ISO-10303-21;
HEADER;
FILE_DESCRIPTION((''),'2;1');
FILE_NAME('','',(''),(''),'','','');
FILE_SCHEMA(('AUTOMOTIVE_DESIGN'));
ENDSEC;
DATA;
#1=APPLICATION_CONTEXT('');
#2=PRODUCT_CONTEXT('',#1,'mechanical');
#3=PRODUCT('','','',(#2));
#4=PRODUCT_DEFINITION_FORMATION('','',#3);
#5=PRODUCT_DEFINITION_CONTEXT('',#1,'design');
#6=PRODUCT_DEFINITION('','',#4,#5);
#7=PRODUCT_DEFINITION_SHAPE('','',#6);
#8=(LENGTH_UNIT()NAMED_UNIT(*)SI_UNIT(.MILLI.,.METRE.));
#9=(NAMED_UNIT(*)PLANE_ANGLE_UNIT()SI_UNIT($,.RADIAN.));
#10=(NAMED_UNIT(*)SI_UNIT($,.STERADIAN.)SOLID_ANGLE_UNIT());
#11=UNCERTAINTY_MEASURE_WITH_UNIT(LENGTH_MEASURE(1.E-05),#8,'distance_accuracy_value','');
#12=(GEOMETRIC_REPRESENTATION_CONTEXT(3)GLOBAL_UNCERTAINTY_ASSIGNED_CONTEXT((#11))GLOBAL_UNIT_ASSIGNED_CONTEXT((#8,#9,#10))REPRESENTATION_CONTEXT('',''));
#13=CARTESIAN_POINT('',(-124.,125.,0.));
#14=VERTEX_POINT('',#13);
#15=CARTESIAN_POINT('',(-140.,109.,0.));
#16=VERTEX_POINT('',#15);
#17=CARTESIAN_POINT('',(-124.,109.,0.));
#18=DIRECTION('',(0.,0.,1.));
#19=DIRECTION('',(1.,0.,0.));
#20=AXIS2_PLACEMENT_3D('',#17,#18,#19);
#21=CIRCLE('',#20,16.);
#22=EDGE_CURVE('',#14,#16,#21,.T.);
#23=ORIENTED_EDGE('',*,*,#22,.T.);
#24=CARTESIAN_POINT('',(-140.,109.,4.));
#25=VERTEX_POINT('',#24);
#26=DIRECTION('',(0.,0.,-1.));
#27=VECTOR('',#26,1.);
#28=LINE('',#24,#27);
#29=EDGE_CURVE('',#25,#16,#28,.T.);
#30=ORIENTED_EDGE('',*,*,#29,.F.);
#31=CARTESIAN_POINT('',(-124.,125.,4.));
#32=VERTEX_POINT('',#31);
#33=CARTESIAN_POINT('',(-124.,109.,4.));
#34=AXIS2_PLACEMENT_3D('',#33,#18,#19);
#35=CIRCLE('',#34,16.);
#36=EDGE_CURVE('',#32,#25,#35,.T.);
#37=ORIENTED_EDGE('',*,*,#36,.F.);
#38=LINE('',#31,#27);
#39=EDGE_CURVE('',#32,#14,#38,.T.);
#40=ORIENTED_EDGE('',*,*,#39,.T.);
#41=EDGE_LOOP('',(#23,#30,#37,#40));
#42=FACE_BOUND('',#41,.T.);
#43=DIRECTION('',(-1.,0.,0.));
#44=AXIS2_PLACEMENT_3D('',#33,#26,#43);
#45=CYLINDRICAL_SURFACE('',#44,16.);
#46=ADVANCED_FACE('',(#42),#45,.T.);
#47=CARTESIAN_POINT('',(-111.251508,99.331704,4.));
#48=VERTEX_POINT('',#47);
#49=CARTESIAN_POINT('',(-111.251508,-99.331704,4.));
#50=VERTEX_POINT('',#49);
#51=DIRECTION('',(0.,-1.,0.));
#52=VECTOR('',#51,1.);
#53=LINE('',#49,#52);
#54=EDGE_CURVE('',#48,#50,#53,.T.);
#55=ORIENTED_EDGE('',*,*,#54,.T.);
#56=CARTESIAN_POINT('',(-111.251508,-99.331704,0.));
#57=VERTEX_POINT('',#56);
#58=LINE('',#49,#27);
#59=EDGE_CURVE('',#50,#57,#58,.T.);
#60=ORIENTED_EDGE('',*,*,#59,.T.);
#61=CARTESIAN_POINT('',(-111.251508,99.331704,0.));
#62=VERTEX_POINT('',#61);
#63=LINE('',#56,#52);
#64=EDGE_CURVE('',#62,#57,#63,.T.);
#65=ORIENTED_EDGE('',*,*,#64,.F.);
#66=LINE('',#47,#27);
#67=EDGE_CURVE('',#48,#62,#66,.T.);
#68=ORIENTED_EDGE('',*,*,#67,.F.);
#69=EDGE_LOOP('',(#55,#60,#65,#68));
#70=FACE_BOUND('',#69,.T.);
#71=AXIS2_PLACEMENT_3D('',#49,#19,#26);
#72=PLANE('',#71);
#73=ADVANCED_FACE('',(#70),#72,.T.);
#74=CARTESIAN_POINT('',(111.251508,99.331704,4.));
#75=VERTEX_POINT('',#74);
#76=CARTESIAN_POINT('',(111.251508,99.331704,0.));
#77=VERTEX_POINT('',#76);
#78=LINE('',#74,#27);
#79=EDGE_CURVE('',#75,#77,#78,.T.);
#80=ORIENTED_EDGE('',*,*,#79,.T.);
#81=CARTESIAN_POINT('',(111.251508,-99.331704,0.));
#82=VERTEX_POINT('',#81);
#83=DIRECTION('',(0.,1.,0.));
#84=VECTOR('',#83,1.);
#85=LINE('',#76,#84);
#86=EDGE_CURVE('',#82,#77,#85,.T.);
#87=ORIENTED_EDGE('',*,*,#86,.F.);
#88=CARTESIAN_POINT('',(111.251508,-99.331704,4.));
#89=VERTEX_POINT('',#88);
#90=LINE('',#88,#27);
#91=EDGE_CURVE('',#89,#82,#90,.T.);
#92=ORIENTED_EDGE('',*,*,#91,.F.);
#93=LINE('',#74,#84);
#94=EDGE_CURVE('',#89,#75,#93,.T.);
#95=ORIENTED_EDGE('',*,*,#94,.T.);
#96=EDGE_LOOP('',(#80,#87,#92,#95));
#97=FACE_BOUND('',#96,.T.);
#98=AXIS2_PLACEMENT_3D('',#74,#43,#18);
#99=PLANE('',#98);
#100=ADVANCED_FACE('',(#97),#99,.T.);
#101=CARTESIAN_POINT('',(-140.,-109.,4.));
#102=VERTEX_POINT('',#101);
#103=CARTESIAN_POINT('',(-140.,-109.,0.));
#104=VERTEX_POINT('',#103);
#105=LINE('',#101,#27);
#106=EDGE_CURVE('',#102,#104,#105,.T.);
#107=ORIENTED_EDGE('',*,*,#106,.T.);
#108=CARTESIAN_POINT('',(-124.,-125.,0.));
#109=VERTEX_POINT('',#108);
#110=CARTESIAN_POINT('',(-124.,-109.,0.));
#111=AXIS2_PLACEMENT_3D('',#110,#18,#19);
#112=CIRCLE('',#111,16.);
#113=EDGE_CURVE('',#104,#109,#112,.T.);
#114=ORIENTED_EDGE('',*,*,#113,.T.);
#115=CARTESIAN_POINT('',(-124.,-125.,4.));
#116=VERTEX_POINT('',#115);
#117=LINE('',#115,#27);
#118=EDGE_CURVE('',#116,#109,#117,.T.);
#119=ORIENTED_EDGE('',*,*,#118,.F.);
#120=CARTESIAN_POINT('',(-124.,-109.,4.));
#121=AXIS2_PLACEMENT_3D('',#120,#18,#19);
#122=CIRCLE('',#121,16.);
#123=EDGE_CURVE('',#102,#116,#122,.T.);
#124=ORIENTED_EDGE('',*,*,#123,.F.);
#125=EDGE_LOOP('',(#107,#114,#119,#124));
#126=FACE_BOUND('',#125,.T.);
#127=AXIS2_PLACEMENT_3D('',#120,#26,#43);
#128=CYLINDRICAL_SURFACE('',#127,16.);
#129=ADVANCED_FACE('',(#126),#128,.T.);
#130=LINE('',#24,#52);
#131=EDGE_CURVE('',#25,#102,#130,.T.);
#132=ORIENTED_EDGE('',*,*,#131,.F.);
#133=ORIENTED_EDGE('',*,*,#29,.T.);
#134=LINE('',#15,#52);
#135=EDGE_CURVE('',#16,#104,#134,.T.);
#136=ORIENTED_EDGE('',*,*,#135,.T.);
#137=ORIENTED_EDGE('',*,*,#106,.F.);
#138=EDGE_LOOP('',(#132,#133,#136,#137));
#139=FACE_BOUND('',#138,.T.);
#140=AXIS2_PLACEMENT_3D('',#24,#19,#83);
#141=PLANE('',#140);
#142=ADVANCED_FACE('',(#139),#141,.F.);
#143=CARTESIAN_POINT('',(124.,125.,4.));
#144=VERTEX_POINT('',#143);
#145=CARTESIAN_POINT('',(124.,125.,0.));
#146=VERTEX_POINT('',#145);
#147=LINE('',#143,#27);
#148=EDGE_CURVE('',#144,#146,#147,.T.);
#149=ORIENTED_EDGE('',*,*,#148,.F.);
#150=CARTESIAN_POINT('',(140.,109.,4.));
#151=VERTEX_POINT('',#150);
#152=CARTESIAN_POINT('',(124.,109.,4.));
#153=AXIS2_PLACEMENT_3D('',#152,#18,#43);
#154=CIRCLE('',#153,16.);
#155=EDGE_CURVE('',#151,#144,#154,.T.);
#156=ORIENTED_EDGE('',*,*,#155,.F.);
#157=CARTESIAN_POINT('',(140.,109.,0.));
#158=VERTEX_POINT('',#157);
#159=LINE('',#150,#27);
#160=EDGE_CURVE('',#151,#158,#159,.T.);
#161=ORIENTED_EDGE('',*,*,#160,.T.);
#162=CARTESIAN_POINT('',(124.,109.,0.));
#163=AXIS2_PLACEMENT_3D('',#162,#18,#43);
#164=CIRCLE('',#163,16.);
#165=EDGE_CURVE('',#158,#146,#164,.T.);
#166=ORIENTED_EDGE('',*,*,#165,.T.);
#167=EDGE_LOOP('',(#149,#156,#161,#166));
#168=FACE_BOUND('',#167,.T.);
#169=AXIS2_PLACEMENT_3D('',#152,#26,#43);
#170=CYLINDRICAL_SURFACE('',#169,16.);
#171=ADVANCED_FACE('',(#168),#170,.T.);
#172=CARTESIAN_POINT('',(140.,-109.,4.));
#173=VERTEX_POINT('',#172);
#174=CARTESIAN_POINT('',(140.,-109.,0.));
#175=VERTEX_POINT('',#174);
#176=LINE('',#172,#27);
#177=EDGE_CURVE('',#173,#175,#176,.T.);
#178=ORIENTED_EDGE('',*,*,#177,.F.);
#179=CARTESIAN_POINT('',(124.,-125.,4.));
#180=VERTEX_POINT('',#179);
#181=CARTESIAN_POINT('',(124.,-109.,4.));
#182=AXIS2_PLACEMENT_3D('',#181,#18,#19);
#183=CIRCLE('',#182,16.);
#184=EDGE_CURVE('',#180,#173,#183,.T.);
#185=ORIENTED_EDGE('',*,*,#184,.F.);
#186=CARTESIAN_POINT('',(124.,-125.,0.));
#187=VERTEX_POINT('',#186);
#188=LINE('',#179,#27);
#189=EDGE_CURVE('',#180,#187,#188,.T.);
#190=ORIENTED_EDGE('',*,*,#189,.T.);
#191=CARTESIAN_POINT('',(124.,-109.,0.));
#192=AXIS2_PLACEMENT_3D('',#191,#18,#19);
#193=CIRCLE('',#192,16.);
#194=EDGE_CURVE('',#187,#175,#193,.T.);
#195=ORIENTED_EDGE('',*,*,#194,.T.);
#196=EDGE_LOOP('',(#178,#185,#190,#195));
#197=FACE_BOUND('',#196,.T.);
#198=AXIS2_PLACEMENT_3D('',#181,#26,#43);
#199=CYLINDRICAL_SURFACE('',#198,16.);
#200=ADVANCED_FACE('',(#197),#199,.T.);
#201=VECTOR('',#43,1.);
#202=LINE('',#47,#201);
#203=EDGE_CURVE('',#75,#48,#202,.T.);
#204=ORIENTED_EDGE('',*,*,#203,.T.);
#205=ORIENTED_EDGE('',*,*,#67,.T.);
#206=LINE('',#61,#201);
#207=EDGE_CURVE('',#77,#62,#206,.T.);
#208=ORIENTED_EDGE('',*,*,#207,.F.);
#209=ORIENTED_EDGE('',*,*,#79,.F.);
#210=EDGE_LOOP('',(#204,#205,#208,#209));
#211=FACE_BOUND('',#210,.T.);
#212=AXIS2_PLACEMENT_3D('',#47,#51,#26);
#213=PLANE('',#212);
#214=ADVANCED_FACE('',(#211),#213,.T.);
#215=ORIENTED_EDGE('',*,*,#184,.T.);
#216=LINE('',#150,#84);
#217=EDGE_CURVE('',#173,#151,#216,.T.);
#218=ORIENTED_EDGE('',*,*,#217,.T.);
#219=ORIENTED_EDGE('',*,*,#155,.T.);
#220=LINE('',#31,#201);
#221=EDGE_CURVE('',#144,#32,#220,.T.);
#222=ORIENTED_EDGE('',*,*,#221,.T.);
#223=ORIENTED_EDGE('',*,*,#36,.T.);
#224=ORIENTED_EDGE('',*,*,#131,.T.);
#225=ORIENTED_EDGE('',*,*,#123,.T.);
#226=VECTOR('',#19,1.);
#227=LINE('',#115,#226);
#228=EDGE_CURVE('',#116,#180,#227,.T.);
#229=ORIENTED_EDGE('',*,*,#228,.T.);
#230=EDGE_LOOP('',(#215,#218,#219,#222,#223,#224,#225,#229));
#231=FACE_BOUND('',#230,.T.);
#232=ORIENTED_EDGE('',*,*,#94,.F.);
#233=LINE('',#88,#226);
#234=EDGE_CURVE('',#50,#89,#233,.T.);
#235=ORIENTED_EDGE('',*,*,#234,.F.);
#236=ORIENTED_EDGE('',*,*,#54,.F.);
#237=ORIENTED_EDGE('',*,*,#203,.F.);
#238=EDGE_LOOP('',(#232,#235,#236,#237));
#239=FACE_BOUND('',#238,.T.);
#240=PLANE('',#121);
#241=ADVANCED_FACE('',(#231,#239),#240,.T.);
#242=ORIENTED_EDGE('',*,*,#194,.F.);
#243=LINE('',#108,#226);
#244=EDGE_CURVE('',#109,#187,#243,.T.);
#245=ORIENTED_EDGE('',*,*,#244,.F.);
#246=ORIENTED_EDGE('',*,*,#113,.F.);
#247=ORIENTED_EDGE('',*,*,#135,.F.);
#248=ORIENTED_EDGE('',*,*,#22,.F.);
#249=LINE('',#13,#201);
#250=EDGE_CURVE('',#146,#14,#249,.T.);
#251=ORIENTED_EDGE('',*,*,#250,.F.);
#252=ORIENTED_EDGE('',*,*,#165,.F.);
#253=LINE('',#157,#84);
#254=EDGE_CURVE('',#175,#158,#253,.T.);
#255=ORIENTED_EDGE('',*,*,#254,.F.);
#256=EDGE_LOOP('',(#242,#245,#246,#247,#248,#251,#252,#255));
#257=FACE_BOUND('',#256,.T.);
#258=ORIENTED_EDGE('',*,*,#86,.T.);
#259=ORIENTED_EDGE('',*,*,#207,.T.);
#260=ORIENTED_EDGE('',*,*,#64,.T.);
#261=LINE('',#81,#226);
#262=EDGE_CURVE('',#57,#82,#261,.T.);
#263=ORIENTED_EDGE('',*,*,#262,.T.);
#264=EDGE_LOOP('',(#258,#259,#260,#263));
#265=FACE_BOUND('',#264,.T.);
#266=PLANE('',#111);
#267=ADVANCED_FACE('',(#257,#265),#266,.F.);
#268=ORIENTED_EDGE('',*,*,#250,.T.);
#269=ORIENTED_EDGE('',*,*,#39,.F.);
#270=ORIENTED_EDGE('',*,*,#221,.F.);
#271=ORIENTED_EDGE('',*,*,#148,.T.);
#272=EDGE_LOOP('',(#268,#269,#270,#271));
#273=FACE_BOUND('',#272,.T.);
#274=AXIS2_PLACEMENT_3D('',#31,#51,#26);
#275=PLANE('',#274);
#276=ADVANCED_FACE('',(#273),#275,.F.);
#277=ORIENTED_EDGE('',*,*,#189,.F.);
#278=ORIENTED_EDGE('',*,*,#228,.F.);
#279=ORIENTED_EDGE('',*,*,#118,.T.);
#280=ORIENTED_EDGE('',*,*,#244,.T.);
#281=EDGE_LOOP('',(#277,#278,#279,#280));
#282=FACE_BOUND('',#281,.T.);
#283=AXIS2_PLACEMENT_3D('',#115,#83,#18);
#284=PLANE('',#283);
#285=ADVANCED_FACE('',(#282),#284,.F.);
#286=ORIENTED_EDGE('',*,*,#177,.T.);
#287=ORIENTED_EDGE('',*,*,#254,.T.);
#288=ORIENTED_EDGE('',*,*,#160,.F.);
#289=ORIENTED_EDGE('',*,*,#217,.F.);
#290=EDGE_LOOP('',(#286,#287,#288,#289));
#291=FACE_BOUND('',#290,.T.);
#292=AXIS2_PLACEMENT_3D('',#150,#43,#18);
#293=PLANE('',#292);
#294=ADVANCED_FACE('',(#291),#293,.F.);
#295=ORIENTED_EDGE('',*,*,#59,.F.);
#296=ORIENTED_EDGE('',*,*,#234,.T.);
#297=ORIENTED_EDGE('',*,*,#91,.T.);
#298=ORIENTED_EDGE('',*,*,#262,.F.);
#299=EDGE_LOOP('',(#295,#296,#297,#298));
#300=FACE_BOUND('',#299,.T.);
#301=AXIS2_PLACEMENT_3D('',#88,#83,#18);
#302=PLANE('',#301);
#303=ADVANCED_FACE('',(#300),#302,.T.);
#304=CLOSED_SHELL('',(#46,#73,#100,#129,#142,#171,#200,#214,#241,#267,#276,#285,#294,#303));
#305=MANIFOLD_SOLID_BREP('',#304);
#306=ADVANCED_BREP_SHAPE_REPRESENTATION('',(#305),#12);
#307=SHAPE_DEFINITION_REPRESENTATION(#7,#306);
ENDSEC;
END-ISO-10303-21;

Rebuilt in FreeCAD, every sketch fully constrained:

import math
import FreeCAD as App
import Part
import Sketcher

V = App.Vector
Q = App.Units.Quantity

doc = App.newDocument("Part")
body = doc.addObject("PartDesign::Body", "Body")

sketch1 = doc.addObject("Sketcher::SketchObject", "Sketch")
body.addObject(sketch1)
sketch1.AttachmentSupport = (doc.XY_Plane, [""])
sketch1.MapMode = "FlatFace"
sketch1.addGeometry([
    Part.LineSegment(V(124, 125, 0), V(-124, 125, 0)),
    Part.ArcOfCircle(Part.Circle(V(-124, 109, 0), V(0, 0, 1), 16), math.radians(90), math.radians(180)),
    Part.LineSegment(V(-140, 109, 0), V(-140, -109, 0)),
    Part.ArcOfCircle(Part.Circle(V(-124, -109, 0), V(0, 0, 1), 16), math.radians(180), math.radians(270)),
    Part.LineSegment(V(-124, -125, 0), V(124, -125, 0)),
    Part.ArcOfCircle(Part.Circle(V(124, -109, 0), V(0, 0, 1), 16), math.radians(-90), math.radians(0)),
    Part.LineSegment(V(140, -109, 0), V(140, 109, 0)),
    Part.ArcOfCircle(Part.Circle(V(124, 109, 0), V(0, 0, 1), 16), math.radians(0), math.radians(90)),
    Part.LineSegment(V(-111, -99, 0), V(-111, 99, 0)),
    Part.LineSegment(V(-111, 99, 0), V(111, 99, 0)),
    Part.LineSegment(V(111, 99, 0), V(111, -99, 0)),
    Part.LineSegment(V(111, -99, 0), V(-111, -99, 0)),
], False)
sketch1.addConstraint([
    Sketcher.Constraint("Tangent", 0, 2, 1, 1),
    Sketcher.Constraint("Tangent", 1, 2, 2, 1),
    Sketcher.Constraint("Tangent", 2, 2, 3, 1),
    Sketcher.Constraint("Tangent", 3, 2, 4, 1),
    Sketcher.Constraint("Tangent", 4, 2, 5, 1),
    Sketcher.Constraint("Tangent", 5, 2, 6, 1),
    Sketcher.Constraint("Tangent", 6, 2, 7, 1),
    Sketcher.Constraint("Tangent", 7, 2, 0, 1),
    Sketcher.Constraint("Coincident", 8, 2, 9, 1),
    Sketcher.Constraint("Coincident", 9, 2, 10, 1),
    Sketcher.Constraint("Coincident", 10, 2, 11, 1),
    Sketcher.Constraint("Coincident", 11, 2, 8, 1),
    Sketcher.Constraint("Horizontal", 0),
    Sketcher.Constraint("Vertical", 2),
    Sketcher.Constraint("Horizontal", 4),
    Sketcher.Constraint("Vertical", 6),
    Sketcher.Constraint("Vertical", 8),
    Sketcher.Constraint("Horizontal", 9),
    Sketcher.Constraint("Vertical", 10),
    Sketcher.Constraint("Horizontal", 11),
    Sketcher.Constraint("Equal", 1, 3),
    Sketcher.Constraint("Equal", 3, 5),
    Sketcher.Constraint("Equal", 5, 7),
    Sketcher.Constraint("Symmetric", 1, 3, 5, 3, -1, 1),
    Sketcher.Constraint("Symmetric", 8, 2, 10, 2, -1, 1),
    Sketcher.Constraint("Radius", 1, Q("16 mm")),
    Sketcher.Constraint("DistanceX", 0, 2, 0, 1, Q("248 mm")),
    Sketcher.Constraint("DistanceY", 2, 2, 2, 1, Q("218 mm")),
    Sketcher.Constraint("DistanceX", 9, 1, 9, 2, Q("222.503016 mm")),
    Sketcher.Constraint("DistanceY", 8, 1, 8, 2, Q("198.663407 mm")),
])
pad1 = doc.addObject("PartDesign::Pad", "Pad")
body.addObject(pad1)
pad1.Profile = sketch1
pad1.Length = 4

doc.recompute()
